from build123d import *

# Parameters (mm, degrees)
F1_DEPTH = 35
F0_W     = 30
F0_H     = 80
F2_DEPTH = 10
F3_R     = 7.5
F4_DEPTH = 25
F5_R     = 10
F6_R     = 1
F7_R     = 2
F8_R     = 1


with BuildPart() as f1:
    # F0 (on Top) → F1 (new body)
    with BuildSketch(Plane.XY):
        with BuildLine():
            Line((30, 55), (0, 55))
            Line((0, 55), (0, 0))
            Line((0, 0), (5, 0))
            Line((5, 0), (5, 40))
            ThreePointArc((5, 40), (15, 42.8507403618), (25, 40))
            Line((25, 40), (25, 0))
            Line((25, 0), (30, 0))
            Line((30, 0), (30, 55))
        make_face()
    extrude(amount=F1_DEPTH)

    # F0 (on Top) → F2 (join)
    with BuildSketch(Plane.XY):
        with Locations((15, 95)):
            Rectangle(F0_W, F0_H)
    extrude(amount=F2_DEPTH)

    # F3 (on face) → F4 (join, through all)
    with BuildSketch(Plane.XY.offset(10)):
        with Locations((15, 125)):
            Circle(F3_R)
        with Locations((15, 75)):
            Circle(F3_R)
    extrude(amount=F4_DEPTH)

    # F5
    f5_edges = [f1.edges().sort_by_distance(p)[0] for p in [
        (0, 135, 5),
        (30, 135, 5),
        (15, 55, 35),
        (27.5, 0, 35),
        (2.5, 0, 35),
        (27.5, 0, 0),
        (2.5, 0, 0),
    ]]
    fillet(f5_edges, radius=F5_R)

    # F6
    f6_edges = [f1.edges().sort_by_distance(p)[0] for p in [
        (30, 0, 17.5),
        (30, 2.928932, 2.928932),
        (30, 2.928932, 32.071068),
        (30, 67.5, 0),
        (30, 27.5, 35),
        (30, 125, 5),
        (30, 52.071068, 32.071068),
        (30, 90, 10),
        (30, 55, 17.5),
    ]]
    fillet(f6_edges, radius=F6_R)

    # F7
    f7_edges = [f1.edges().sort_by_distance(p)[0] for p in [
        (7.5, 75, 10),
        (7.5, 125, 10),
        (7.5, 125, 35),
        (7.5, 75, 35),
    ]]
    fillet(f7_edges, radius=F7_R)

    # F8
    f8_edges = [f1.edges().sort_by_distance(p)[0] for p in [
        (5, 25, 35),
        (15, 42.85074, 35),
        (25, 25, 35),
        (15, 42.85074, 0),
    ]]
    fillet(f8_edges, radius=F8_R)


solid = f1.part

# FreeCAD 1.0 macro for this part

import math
import FreeCAD as App
import Part
import Sketcher
from FreeCAD import Vector


def edges_at(feature, points):
    """Names of the edges that pass closest to the given points."""
    edges = feature.Shape.Edges
    near = lambda p: min(range(len(edges)), key=lambda i: edges[i].distToShape(Part.Vertex(*p))[0])
    return sorted({f"Edge{near(p) + 1}" for p in points})


def add_polygon(sketch, points):
    """Adds a closed chain of lines whose ends are joined by coincident constraints."""
    first, n = sketch.GeometryCount, len(points)
    for a, b in zip(points, points[1:] + points[:1]):
        sketch.addGeometry(Part.LineSegment(App.Vector(*a, 0), App.Vector(*b, 0)), False)
    for i in range(n):
        sketch.addConstraint(Sketcher.Constraint("Coincident", first + i, 2, first + (i + 1) % n, 1))

doc = App.newDocument("Part")
body = doc.addObject("PartDesign::Body", "Body")

# Sketch on XY plane
sketch1 = body.newObject("Sketcher::SketchObject", "Sketch")
sketch1.AttachmentSupport = (doc.getObject("XY_Plane"), [""])
sketch1.MapMode = "FlatFace"
sketch1.addGeometry([
    Part.LineSegment(Vector(30, 55, 0), Vector(0, 55, 0)),  # 0
    Part.LineSegment(Vector(0, 55, 0), Vector(0, 0, 0)),  # 1
    Part.LineSegment(Vector(0, 0, 0), Vector(5, 0, 0)),  # 2
    Part.LineSegment(Vector(5, 0, 0), Vector(5, 40, 0)),  # 3
    Part.ArcOfCircle(Part.Circle(Vector(15, 23.886067, 0), Vector(0, 0, 1), 18.964674), math.radians(58.17705), math.radians(121.82295)),  # 4
    Part.LineSegment(Vector(25, 40, 0), Vector(25, 0, 0)),  # 5
    Part.LineSegment(Vector(25, 0, 0), Vector(30, 0, 0)),  # 6
    Part.LineSegment(Vector(30, 0, 0), Vector(30, 55, 0)),  # 7
], False)
sketch1.addConstraint([
    Sketcher.Constraint("Coincident", 0, 2, 1, 1),
    Sketcher.Constraint("Coincident", 1, 2, 2, 1),
    Sketcher.Constraint("Coincident", 2, 2, 3, 1),
    Sketcher.Constraint("Coincident", 3, 2, 4, 2),
    Sketcher.Constraint("Coincident", 4, 1, 5, 1),
    Sketcher.Constraint("Coincident", 5, 2, 6, 1),
    Sketcher.Constraint("Coincident", 6, 2, 7, 1),
    Sketcher.Constraint("Coincident", 7, 2, 0, 1),
    Sketcher.Constraint("Horizontal", 0),
    Sketcher.Constraint("Vertical", 1),
    Sketcher.Constraint("Horizontal", 2),
    Sketcher.Constraint("Vertical", 3),
    Sketcher.Constraint("Vertical", 5),
    Sketcher.Constraint("Horizontal", 6),
    Sketcher.Constraint("Vertical", 7),
    Sketcher.Constraint("Coincident", 1, 2, -1, 1),
    Sketcher.Constraint("PointOnObject", 5, 2, -1),
    Sketcher.Constraint("Horizontal", 3, 2, 4, 1),
    Sketcher.Constraint("Equal", 2, 6),
    Sketcher.Constraint("DistanceX", 0, 2, 0, 1, 30.0),
    Sketcher.Constraint("DistanceX", 2, 1, 2, 2, 5.0),
    Sketcher.Constraint("DistanceY", 1, 2, 1, 1, 55.0),
    Sketcher.Constraint("DistanceY", 3, 1, 3, 2, 40.0),
    Sketcher.Constraint("Radius", 4, 18.964674),
])
pad1 = body.newObject("PartDesign::Pad", "Pad")
pad1.Profile = sketch1
pad1.Length = 35

# Sketch on XY plane
sketch2 = body.newObject("Sketcher::SketchObject", "Sketch001")
sketch2.AttachmentSupport = (doc.getObject("XY_Plane"), [""])
sketch2.MapMode = "FlatFace"
add_polygon(sketch2, [(0, 135), (0, 55), (30, 55), (30, 135)])  # lines 0-3
sketch2.addConstraint([
    Sketcher.Constraint("Vertical", 0),
    Sketcher.Constraint("Horizontal", 1),
    Sketcher.Constraint("Vertical", 2),
    Sketcher.Constraint("Horizontal", 3),
    Sketcher.Constraint("PointOnObject", 0, 2, -2),
    Sketcher.Constraint("DistanceX", 1, 1, 1, 2, 30.0),
    Sketcher.Constraint("DistanceY", 0, 2, 0, 1, 80.0),
    Sketcher.Constraint("DistanceY", -1, 1, 0, 2, 55.0),
])
pad2 = body.newObject("PartDesign::Pad", "Pad001")
pad2.Profile = sketch2
pad2.Length = 10

# Sketch on XY plane
sketch3 = body.newObject("Sketcher::SketchObject", "Sketch002")
sketch3.AttachmentSupport = (doc.getObject("XY_Plane"), [""])
sketch3.MapMode = "FlatFace"
sketch3.AttachmentOffset = App.Placement(Vector(0, 0, 10), App.Rotation())
sketch3.addGeometry([
    Part.Circle(Vector(15, 125, 0), Vector(0, 0, 1), 7.5),
    Part.Circle(Vector(15, 75, 0), Vector(0, 0, 1), 7.5),
], False)
sketch3.addConstraint([
    Sketcher.Constraint("Equal", 0, 1),
    Sketcher.Constraint("Vertical", 0, 3, 1, 3),
    Sketcher.Constraint("Diameter", 0, 15.0),
    Sketcher.Constraint("DistanceX", -1, 1, 0, 3, 15.0),
    Sketcher.Constraint("DistanceY", -1, 1, 0, 3, 125.0),
    Sketcher.Constraint("DistanceY", -1, 1, 1, 3, 75.0),
])
pad3 = body.newObject("PartDesign::Pad", "Pad002")
pad3.Profile = sketch3
pad3.Length = 25
doc.recompute()

fillet = body.newObject("PartDesign::Fillet", "Fillet")
fillet.Base = (pad3, edges_at(pad3, [
    (0, 135, 5),
    (30, 135, 5),
    (15, 55, 35),
    (27.5, 0, 35),
    (2.5, 0, 35),
    (27.5, 0, 0),
    (2.5, 0, 0),
]))
fillet.Radius = 10
doc.recompute()

fillet2 = body.newObject("PartDesign::Fillet", "Fillet001")
fillet2.Base = (fillet, edges_at(fillet, [
    (30, 0, 17.5),
    (30, 2.929, 2.929),
    (30, 2.929, 32.071),
    (30, 67.5, 0),
    (30, 27.5, 35),
    (30, 125, 5),
    (30, 52.071, 32.071),
    (30, 90, 10),
    (30, 55, 17.5),
]))
fillet2.Radius = 1
doc.recompute()

fillet3 = body.newObject("PartDesign::Fillet", "Fillet002")
fillet3.Base = (fillet2, edges_at(fillet2, [
    (7.5, 75, 10),
    (7.5, 125, 10),
    (7.5, 125, 35),
    (7.5, 75, 35),
]))
fillet3.Radius = 2
doc.recompute()

fillet4 = body.newObject("PartDesign::Fillet", "Fillet003")
fillet4.Base = (fillet3, edges_at(fillet3, [
    (5, 25, 35),
    (15, 42.851, 35),
    (25, 25, 35),
    (15, 42.851, 0),
]))
fillet4.Radius = 1

doc.recompute()
